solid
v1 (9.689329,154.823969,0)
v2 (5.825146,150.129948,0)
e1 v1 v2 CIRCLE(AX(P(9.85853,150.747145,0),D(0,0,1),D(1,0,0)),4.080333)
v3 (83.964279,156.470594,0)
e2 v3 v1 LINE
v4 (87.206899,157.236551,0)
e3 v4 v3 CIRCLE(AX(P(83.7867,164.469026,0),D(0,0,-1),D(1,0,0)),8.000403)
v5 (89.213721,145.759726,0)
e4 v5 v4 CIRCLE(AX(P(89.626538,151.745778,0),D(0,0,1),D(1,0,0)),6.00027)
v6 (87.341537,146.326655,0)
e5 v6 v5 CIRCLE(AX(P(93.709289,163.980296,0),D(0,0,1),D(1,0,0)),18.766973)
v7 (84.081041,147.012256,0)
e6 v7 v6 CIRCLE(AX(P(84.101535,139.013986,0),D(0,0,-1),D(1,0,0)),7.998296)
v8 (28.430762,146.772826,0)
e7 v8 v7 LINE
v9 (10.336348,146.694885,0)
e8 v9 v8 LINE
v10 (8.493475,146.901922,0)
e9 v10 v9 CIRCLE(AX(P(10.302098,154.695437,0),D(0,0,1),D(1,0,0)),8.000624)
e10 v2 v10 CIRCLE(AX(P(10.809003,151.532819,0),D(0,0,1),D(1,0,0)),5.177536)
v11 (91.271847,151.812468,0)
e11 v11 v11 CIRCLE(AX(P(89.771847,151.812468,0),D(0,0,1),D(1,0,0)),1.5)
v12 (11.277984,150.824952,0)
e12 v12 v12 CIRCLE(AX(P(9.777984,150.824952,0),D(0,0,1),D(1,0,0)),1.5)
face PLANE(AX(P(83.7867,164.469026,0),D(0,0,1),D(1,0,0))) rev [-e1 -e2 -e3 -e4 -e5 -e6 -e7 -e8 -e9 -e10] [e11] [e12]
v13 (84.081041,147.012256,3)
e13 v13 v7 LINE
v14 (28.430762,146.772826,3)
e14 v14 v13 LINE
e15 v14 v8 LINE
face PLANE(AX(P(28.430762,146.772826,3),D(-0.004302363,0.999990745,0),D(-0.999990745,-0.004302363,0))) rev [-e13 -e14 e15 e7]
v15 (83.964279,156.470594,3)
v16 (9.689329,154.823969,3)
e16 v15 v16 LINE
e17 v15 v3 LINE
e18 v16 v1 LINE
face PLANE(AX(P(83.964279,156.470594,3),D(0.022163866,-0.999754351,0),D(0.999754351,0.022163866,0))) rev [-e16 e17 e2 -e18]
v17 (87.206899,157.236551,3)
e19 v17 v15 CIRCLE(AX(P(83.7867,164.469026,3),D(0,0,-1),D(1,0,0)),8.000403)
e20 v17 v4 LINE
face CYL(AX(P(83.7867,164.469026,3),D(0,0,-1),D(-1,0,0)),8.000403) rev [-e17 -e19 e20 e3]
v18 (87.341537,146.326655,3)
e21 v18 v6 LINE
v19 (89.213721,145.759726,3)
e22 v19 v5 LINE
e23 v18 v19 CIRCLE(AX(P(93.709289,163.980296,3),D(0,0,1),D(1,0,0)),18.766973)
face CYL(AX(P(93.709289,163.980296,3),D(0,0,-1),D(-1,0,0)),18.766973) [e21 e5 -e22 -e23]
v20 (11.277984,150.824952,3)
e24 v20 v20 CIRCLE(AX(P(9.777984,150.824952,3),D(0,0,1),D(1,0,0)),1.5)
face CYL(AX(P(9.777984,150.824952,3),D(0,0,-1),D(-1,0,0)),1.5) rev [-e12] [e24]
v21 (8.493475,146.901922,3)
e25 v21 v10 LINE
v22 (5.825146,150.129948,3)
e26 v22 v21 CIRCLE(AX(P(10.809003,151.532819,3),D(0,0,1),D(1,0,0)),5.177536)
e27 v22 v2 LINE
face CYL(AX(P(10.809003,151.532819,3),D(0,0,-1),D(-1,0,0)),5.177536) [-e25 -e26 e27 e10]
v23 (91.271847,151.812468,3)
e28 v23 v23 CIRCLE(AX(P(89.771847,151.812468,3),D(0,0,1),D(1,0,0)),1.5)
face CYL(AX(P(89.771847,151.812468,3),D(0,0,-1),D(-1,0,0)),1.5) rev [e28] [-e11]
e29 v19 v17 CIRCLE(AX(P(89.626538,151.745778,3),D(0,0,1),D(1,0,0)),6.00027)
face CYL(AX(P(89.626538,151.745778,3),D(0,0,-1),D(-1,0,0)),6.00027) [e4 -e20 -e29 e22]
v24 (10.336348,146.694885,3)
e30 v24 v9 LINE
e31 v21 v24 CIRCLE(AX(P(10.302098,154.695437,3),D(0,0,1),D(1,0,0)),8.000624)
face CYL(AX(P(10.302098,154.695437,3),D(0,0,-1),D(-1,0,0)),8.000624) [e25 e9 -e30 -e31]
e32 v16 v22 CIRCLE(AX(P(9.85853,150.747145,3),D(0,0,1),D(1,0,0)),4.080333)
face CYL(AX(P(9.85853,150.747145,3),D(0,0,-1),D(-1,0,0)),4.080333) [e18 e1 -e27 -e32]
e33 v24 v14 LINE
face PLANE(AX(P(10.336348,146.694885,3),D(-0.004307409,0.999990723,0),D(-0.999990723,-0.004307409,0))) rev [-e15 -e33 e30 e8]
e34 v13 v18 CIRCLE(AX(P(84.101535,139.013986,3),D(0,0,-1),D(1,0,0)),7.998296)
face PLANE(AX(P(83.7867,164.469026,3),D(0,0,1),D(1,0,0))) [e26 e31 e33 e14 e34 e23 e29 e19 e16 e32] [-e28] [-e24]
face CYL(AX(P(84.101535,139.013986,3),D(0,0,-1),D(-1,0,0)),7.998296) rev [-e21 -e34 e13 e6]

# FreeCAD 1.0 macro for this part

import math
import FreeCAD as App
import Part
import Sketcher

V = App.Vector
Q = App.Units.Quantity

doc = App.newDocument("Part")
body = doc.addObject("PartDesign::Body", "Body")

# Sketch on XY plane
sketch1 = body.newObject("Sketcher::SketchObject", "Sketch")
sketch1.AttachmentSupport = (doc.getObject("XY_Plane"), [""])
sketch1.MapMode = "FlatFace"
sketch1.addGeometry([
    Part.LineSegment(V(28.430762, 146.772826, 0), V(84.081041, 147.012256, 0)),  # 0
    Part.ArcOfCircle(Part.Circle(V(84.101535, 139.013986, 0), V(0, 0, 1), 7.998297), math.radians(66.103448), math.radians(90.146809)),  # 1
    Part.ArcOfCircle(Part.Circle(V(93.709289, 163.980295, 0), V(0, 0, 1), 18.766973), math.radians(-109.834615), math.radians(-103.859793)),  # 2
    Part.ArcOfCircle(Part.Circle(V(89.626538, 151.745778, 0), V(0, 0, 1), 6.00027), math.radians(-93.945049), math.radians(113.781825)),  # 3
    Part.ArcOfCircle(Part.Circle(V(83.7867, 164.469026, 0), V(0, 0, 1), 8.000403), math.radians(-88.728148), math.radians(-64.690787)),  # 4
    Part.LineSegment(V(83.964279, 156.470594, 0), V(9.689329, 154.823969, 0)),  # 5
    Part.ArcOfCircle(Part.Circle(V(9.85853, 150.747145, 0), V(0, 0, 1), 4.080333), math.radians(92.376595), math.radians(188.700046)),  # 6
    Part.ArcOfCircle(Part.Circle(V(10.809003, 151.532819, 0), V(0, 0, 1), 5.177536), math.radians(-164.278986), math.radians(-116.565836)),  # 7
    Part.ArcOfCircle(Part.Circle(V(10.302098, 154.695437, 0), V(0, 0, 1), 8.000624), math.radians(-103.06523), math.radians(-89.75472)),  # 8
    Part.LineSegment(V(10.336348, 146.694885, 0), V(28.430762, 146.772826, 0)),  # 9
    Part.Circle(V(9.777984, 150.824952, 0), V(0, 0, 1), 1.5),  # 10
    Part.Circle(V(89.771847, 151.812468, 0), V(0, 0, 1), 1.5),  # 11
], False)
sketch1.addConstraint([
    Sketcher.Constraint("Coincident", 0, 2, 1, 2),
    Sketcher.Constraint("Coincident", 1, 1, 2, 1),
    Sketcher.Constraint("Coincident", 2, 2, 3, 1),
    Sketcher.Constraint("Coincident", 3, 2, 4, 2),
    Sketcher.Constraint("Coincident", 4, 1, 5, 1),
    Sketcher.Constraint("Coincident", 5, 2, 6, 1),
    Sketcher.Constraint("Coincident", 6, 2, 7, 1),
    Sketcher.Constraint("Coincident", 7, 2, 8, 1),
    Sketcher.Constraint("Coincident", 8, 2, 9, 1),
    Sketcher.Constraint("Coincident", 9, 2, 0, 1),
    Sketcher.Constraint("Equal", 10, 11),
    Sketcher.Constraint("Diameter", 10, 3.0),
    Sketcher.Constraint("Angle", 5, Q("-178.73 deg")),
    Sketcher.Constraint("Radius", 3, 6.00027),
    Sketcher.Constraint("Radius", 1, 7.998297),
    Sketcher.Constraint("Radius", 2, 18.766973),
    Sketcher.Constraint("Radius", 4, 8.000403),
    Sketcher.Constraint("Radius", 6, 4.080333),
    Sketcher.Constraint("Radius", 7, 5.177536),
    Sketcher.Constraint("Radius", 8, 8.000624),
    Sketcher.Constraint("DistanceX", 1, 1, 3, 3, 2.285),
    Sketcher.Constraint("Distance", 5, 74.2932),
    Sketcher.Constraint("DistanceX", -1, 1, 4, 3, 83.7867),
    Sketcher.Constraint("DistanceX", -1, 1, 3, 2, 87.206899),
    Sketcher.Constraint("DistanceY", 1, 1, 0, 2, 0.685601),
    Sketcher.Constraint("DistanceX", 5, 2, 6, 3, 0.169201),
    Sketcher.Constraint("Distance", 9, 18.094582),
    Sketcher.Constraint("DistanceX", -1, 1, 2, 3, 93.709289),
    Sketcher.Constraint("DistanceY", -1, 1, 3, 3, 151.745778),
    Sketcher.Constraint("DistanceX", -1, 1, 6, 3, 9.85853),
    Sketcher.Constraint("DistanceY", -1, 1, 7, 3, 151.532819),
    Sketcher.Constraint("DistanceY", -1, 1, 10, 3, 150.824952),
    Sketcher.Constraint("DistanceX", -1, 1, 0, 2, 84.081041),
    Sketcher.Constraint("DistanceX", -1, 1, 2, 2, 89.213721),
    Sketcher.Constraint("DistanceY", -1, 1, 3, 2, 157.236551),
    Sketcher.Constraint("DistanceY", -1, 1, 7, 2, 146.901922),
    Sketcher.Constraint("DistanceX", -1, 1, 9, 2, 28.430762),
    Sketcher.Constraint("DistanceX", 7, 3, 1, 3, 73.292532),
    Sketcher.Constraint("DistanceY", 6, 3, 8, 3, 3.948291),
    Sketcher.Constraint("DistanceX", 10, 3, 7, 3, 1.031019),
    Sketcher.Constraint("DistanceX", 3, 3, 11, 3, 0.14531),
    Sketcher.Constraint("DistanceY", 3, 3, 11, 3, 0.06669),
    Sketcher.Constraint("DistanceY", 8, 2, 9, 2, 0.077941),
])
pad1 = body.newObject("PartDesign::Pad", "Pad")
pad1.Profile = sketch1
pad1.Length = 3

doc.recompute()
